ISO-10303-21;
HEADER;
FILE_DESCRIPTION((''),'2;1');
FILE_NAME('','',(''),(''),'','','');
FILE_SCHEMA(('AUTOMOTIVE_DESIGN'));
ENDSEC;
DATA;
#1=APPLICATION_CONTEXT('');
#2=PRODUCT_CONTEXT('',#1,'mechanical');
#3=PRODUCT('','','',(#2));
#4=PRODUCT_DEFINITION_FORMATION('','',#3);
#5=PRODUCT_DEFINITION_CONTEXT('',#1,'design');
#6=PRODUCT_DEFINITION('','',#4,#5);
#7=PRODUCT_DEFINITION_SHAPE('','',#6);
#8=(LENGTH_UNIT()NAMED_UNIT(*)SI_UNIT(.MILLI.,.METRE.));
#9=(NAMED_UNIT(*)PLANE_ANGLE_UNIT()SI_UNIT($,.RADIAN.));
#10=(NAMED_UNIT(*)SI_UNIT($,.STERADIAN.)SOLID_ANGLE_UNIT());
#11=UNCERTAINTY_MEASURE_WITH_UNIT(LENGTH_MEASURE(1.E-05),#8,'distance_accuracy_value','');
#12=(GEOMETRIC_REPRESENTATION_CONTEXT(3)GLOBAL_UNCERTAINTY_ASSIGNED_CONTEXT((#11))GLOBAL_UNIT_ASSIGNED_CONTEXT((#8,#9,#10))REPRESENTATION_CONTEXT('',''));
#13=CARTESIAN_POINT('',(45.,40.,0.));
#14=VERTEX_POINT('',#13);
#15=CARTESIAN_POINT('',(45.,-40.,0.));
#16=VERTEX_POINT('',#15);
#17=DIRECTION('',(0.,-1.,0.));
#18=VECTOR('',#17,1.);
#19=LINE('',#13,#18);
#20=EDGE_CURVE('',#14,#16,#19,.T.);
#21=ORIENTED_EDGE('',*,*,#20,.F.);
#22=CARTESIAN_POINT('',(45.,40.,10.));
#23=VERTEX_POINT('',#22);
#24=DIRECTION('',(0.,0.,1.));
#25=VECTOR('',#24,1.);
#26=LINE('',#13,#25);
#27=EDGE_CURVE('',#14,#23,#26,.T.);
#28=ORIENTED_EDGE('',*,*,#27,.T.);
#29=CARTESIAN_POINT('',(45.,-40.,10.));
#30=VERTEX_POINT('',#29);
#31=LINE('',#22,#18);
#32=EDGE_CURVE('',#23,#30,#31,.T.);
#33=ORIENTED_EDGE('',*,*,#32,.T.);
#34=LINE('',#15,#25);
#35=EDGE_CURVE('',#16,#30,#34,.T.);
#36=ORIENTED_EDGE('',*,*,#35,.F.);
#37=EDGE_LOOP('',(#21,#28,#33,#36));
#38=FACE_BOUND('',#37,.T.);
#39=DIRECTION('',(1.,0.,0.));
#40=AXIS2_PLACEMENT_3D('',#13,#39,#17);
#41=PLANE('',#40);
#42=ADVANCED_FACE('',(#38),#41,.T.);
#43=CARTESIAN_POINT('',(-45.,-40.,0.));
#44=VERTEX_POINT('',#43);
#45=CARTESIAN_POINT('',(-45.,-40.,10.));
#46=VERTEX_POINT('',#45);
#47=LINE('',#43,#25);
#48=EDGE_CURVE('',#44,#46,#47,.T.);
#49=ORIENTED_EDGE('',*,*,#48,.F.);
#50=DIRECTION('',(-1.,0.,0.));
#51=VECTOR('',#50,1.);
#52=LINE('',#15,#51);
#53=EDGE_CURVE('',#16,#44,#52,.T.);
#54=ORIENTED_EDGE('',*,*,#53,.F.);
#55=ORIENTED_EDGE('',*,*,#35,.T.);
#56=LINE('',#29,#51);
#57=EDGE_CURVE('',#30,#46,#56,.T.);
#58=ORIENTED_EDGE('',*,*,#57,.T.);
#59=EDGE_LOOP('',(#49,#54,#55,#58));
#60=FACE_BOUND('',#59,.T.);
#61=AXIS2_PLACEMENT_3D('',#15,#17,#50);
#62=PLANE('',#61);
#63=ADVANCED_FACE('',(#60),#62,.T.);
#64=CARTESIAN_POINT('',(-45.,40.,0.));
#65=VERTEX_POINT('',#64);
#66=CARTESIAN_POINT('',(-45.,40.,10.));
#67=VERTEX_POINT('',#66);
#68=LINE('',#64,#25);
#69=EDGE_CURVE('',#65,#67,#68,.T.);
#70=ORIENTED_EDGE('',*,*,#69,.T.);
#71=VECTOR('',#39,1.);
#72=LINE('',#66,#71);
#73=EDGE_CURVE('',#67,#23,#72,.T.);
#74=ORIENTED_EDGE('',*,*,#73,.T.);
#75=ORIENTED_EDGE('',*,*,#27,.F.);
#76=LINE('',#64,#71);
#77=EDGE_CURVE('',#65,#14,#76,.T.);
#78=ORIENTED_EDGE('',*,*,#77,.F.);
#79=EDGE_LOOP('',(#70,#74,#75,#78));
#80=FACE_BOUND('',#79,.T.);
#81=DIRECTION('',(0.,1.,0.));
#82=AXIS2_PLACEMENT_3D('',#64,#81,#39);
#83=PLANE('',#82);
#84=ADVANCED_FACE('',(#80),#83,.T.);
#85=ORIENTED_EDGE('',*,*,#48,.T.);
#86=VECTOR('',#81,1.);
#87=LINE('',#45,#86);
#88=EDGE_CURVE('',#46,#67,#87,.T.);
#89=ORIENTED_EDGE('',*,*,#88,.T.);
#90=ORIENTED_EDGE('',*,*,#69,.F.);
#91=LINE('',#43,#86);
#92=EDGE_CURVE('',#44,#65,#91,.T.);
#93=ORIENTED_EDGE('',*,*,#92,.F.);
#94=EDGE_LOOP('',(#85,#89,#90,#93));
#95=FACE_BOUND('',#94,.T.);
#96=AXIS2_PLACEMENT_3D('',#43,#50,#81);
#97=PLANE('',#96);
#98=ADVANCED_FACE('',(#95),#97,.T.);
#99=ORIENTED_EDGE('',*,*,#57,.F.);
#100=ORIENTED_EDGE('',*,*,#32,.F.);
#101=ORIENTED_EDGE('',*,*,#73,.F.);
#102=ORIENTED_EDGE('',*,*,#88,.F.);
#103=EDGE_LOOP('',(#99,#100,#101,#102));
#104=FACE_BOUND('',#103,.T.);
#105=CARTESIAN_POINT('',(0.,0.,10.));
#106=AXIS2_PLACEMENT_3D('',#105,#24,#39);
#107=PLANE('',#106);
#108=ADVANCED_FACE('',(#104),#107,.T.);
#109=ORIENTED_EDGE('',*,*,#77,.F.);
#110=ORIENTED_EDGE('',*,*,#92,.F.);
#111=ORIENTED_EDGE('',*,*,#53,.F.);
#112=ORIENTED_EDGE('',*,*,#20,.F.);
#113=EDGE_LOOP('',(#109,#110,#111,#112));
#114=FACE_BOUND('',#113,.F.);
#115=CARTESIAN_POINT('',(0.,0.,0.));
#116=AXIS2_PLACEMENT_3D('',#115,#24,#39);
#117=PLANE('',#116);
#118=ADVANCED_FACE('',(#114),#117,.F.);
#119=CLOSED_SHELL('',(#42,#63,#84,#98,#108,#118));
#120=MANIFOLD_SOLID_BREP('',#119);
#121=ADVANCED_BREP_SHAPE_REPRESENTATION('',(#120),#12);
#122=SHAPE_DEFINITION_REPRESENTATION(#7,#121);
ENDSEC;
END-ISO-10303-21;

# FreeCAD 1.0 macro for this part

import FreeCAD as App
import Part
import Sketcher
from FreeCAD import Vector


def add_polygon(sketch, points):
    """Adds a closed chain of lines whose ends are joined by coincident constraints."""
    first, n = sketch.GeometryCount, len(points)
    for a, b in zip(points, points[1:] + points[:1]):
        sketch.addGeometry(Part.LineSegment(App.Vector(*a, 0), App.Vector(*b, 0)), False)
    for i in range(n):
        sketch.addConstraint(Sketcher.Constraint("Coincident", first + i, 2, first + (i + 1) % n, 1))

doc = App.newDocument("Part")
body = doc.addObject("PartDesign::Body", "Body")

sketch1 = body.newObject("Sketcher::SketchObject", "Sketch")
sketch1.AttachmentSupport = (doc.getObject("XY_Plane"), [""])
sketch1.MapMode = "FlatFace"
add_polygon(sketch1, [(-45, -40), (45, -40), (45, 40), (-45, 40)])
sketch1.addConstraint(Sketcher.Constraint("Horizontal", 0))
sketch1.addConstraint(Sketcher.Constraint("Vertical", 1))
sketch1.addConstraint(Sketcher.Constraint("Horizontal", 2))
sketch1.addConstraint(Sketcher.Constraint("Vertical", 3))
sketch1.addConstraint(Sketcher.Constraint("Symmetric", 0, 2, 2, 2, -1, 1))
sketch1.addConstraint(Sketcher.Constraint("DistanceX", 0, 1, 0, 2, 90.0))
sketch1.addConstraint(Sketcher.Constraint("DistanceY", 1, 1, 1, 2, 80.0))
pad1 = body.newObject("PartDesign::Pad", "Pad")
pad1.Profile = sketch1
pad1.Length = 10

doc.recompute()
